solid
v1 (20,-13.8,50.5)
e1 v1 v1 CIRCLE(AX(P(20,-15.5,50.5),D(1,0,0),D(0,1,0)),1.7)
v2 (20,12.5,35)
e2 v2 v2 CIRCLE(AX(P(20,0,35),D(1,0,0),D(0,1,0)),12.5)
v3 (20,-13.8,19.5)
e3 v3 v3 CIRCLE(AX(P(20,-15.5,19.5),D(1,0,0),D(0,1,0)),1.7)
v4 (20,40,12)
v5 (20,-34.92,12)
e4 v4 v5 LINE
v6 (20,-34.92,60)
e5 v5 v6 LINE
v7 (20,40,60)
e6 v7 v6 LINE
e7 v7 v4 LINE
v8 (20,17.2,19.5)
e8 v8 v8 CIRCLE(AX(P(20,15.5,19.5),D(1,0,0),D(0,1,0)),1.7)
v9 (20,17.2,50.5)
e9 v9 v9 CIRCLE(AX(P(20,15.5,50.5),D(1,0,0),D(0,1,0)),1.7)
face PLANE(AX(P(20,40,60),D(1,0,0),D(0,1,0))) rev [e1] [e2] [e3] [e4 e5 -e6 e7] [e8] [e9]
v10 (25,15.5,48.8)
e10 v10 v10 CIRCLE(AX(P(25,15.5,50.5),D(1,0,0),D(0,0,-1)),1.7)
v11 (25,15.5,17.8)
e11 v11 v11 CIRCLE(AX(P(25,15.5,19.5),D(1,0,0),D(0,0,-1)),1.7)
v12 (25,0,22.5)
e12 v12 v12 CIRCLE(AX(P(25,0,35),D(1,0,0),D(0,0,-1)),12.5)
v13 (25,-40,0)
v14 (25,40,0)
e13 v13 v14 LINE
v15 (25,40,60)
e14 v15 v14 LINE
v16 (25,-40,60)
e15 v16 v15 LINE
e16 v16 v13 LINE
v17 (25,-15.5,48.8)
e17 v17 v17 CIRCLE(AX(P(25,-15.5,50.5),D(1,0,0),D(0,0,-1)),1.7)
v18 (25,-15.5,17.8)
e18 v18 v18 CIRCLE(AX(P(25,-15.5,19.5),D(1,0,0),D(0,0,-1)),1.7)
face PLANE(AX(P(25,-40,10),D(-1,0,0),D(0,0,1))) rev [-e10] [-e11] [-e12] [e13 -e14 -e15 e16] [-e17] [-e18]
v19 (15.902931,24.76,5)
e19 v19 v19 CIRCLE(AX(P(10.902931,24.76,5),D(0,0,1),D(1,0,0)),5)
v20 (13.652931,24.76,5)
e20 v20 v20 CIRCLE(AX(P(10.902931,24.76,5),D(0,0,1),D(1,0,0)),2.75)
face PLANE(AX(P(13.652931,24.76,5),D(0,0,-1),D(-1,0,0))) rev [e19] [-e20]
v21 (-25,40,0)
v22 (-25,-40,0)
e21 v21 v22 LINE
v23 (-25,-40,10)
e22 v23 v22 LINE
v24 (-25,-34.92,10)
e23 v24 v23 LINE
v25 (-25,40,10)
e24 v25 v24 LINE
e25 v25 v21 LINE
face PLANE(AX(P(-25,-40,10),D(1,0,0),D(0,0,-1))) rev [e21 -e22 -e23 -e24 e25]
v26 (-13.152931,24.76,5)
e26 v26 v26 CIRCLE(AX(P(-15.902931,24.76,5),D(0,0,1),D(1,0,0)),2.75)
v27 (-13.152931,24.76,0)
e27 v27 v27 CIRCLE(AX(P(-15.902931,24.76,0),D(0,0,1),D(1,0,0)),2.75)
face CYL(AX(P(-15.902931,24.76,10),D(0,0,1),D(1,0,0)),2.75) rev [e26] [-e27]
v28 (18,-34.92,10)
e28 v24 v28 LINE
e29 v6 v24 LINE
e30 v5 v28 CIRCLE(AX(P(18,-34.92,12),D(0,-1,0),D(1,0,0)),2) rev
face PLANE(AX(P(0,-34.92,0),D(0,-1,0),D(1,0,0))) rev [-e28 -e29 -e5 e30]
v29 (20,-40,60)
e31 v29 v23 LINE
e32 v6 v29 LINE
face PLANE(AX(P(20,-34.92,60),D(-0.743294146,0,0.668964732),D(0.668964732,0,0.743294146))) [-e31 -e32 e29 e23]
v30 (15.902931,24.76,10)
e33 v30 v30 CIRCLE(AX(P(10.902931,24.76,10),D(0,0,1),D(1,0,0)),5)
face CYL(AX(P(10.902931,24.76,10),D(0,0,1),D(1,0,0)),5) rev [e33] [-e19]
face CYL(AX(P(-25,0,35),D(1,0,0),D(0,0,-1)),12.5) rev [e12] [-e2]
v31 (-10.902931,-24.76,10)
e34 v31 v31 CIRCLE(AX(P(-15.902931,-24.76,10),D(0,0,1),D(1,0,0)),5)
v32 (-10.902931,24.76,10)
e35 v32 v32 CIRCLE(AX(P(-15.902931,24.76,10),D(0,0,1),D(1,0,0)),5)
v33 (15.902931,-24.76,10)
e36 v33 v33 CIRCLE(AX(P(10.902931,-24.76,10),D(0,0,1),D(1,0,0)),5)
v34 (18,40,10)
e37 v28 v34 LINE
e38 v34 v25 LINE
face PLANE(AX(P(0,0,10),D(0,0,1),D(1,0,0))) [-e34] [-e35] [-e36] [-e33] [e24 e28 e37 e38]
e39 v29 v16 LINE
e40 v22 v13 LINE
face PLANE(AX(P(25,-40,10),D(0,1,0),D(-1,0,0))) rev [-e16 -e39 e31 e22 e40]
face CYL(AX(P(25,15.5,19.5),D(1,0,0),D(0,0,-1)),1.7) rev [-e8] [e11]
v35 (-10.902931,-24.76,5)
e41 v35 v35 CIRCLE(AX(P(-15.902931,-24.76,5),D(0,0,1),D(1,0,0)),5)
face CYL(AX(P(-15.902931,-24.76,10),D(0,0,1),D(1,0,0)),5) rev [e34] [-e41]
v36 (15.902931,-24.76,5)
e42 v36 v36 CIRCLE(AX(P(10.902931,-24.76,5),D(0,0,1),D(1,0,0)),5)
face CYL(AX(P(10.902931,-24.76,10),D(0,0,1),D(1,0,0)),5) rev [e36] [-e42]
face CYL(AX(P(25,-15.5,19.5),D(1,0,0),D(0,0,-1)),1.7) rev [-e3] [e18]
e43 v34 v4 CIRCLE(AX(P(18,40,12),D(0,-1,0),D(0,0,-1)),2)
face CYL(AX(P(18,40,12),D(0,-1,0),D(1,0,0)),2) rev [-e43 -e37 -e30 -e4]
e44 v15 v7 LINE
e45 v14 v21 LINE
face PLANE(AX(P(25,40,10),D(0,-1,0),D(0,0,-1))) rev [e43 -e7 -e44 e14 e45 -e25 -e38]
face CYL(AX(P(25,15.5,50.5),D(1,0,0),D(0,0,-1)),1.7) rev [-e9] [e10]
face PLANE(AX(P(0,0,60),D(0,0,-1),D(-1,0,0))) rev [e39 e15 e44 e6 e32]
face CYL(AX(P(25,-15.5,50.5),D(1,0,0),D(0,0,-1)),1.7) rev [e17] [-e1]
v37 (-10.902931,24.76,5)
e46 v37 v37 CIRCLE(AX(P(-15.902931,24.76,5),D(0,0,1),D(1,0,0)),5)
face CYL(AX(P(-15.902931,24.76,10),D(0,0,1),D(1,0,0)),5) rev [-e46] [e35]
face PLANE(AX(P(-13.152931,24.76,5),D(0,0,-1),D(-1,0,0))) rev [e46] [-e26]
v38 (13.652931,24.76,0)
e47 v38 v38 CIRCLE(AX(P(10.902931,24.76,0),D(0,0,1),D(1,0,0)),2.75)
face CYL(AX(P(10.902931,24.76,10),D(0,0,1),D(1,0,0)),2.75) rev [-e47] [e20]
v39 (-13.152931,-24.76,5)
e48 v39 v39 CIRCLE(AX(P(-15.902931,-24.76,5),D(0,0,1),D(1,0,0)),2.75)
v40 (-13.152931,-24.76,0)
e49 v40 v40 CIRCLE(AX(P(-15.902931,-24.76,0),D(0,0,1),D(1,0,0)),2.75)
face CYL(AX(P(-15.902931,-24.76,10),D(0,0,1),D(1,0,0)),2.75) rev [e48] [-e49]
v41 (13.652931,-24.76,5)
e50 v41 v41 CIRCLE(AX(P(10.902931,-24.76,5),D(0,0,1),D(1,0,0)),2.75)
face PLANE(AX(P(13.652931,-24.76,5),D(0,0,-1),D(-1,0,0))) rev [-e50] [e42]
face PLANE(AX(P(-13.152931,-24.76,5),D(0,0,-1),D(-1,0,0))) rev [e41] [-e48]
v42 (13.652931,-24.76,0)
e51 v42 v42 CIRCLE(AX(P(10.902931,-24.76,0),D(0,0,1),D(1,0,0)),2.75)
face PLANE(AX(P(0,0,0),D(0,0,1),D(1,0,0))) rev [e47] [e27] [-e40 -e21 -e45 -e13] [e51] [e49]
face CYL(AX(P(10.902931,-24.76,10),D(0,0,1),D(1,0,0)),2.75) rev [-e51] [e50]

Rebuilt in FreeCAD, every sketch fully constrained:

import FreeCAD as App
import Part
import Sketcher

V = App.Vector
Q = App.Units.Quantity


def edges_at(feature, points):
    """Names of the edges that pass closest to the given points."""
    edges = feature.Shape.Edges
    near = lambda p: min(range(len(edges)), key=lambda i: edges[i].distToShape(Part.Vertex(*p))[0])
    return sorted({f"Edge{near(p) + 1}" for p in points})


def add_polygon(sketch, points):
    """Adds a closed chain of lines whose ends are joined by coincident constraints."""
    first, n = sketch.GeometryCount, len(points)
    for a, b in zip(points, points[1:] + points[:1]):
        sketch.addGeometry(Part.LineSegment(App.Vector(*a, 0), App.Vector(*b, 0)), False)
    for i in range(n):
        sketch.addConstraint(Sketcher.Constraint("Coincident", first + i, 2, first + (i + 1) % n, 1))

doc = App.newDocument("Part")
body = doc.addObject("PartDesign::Body", "Body")

# Sketch on XY plane
sketch1 = body.newObject("Sketcher::SketchObject", "Sketch")
sketch1.AttachmentSupport = (doc.getObject("XY_Plane"), [""])
sketch1.MapMode = "FlatFace"
add_polygon(sketch1, [(-25, 40), (-25, -40), (25, -40), (25, 40)])  # lines 0-3
sketch1.addConstraint(Sketcher.Constraint("Vertical", 0))
sketch1.addConstraint(Sketcher.Constraint("Horizontal", 1))
sketch1.addConstraint(Sketcher.Constraint("Vertical", 2))
sketch1.addConstraint(Sketcher.Constraint("Horizontal", 3))
sketch1.addConstraint(Sketcher.Constraint("Symmetric", 0, 2, 2, 2, -1, 1))
sketch1.addConstraint(Sketcher.Constraint("DistanceX", 1, 1, 1, 2, Q("50 mm")))
sketch1.addConstraint(Sketcher.Constraint("DistanceY", 0, 2, 0, 1, Q("80 mm")))
pad1 = body.newObject("PartDesign::Pad", "Pad")
pad1.Profile = sketch1
pad1.Length = 10

# Sketch on XY plane
sketch2 = body.newObject("Sketcher::SketchObject", "Sketch001")
sketch2.AttachmentSupport = (doc.getObject("XY_Plane"), [""])
sketch2.MapMode = "FlatFace"
sketch2.AttachmentOffset = App.Placement(V(0, 0, 10), App.Rotation())
add_polygon(sketch2, [(20, 40), (20, -40), (25, -40), (25, 40)])  # lines 0-3
sketch2.addConstraint(Sketcher.Constraint("Vertical", 0))
sketch2.addConstraint(Sketcher.Constraint("Horizontal", 1))
sketch2.addConstraint(Sketcher.Constraint("Vertical", 2))
sketch2.addConstraint(Sketcher.Constraint("Horizontal", 3))
sketch2.addConstraint(Sketcher.Constraint("DistanceX", 1, 1, 1, 2, Q("5 mm")))
sketch2.addConstraint(Sketcher.Constraint("DistanceY", 0, 2, 0, 1, Q("80 mm")))
sketch2.addConstraint(Sketcher.Constraint("DistanceX", -1, 1, 0, 2, Q("20 mm")))
sketch2.addConstraint(Sketcher.Constraint("DistanceY", 0, 2, -1, 1, Q("40 mm")))
pad2 = body.newObject("PartDesign::Pad", "Pad001")
pad2.Profile = sketch2
pad2.Length = 50

# Sketch on YZ plane
sketch3 = body.newObject("Sketcher::SketchObject", "Sketch002")
sketch3.AttachmentSupport = (doc.getObject("YZ_Plane"), [""])
sketch3.MapMode = "FlatFace"
sketch3.AttachmentOffset = App.Placement(V(0, 0, 25), App.Rotation())
sketch3.addGeometry(Part.Circle(V(0, 35, 0), V(0, 0, 1), 12), False)
sketch3.addConstraint(Sketcher.Constraint("PointOnObject", 0, 3, -2))
sketch3.addConstraint(Sketcher.Constraint("Diameter", 0, Q("25 mm")))
sketch3.addConstraint(Sketcher.Constraint("DistanceY", -1, 1, 0, 3, Q("35 mm")))
pocket1 = body.newObject("PartDesign::Pocket", "Pocket")
pocket1.Profile = sketch3
pocket1.Type = "ThroughAll"

# Sketch on YZ plane
sketch4 = body.newObject("Sketcher::SketchObject", "Sketch003")
sketch4.AttachmentSupport = (doc.getObject("YZ_Plane"), [""])
sketch4.MapMode = "FlatFace"
sketch4.AttachmentOffset = App.Placement(V(0, 0, 25), App.Rotation())
sketch4.addGeometry(Part.Circle(V(-15.5, 50.5, 0), V(0, 0, 1), 1.7), False)
sketch4.addGeometry(Part.Circle(V(0, 35, 0), V(0, 0, 1), 1.7), False)
sketch4.addGeometry(Part.Circle(V(15.5, 50.5, 0), V(0, 0, 1), 1.7), False)
sketch4.addGeometry(Part.Circle(V(-15.5, 19.5, 0), V(0, 0, 1), 1.7), False)
sketch4.addGeometry(Part.Circle(V(15.5, 19.5, 0), V(0, 0, 1), 1.7), False)
sketch4.addConstraint(Sketcher.Constraint("Equal", 0, 1))
sketch4.addConstraint(Sketcher.Constraint("Equal", 1, 2))
sketch4.addConstraint(Sketcher.Constraint("Equal", 2, 3))
sketch4.addConstraint(Sketcher.Constraint("Equal", 3, 4))
sketch4.addConstraint(Sketcher.Constraint("Symmetric", 0, 3, 2, 3, -2))
sketch4.addConstraint(Sketcher.Constraint("Symmetric", 3, 3, 4, 3, -2))
sketch4.addConstraint(Sketcher.Constraint("PointOnObject", 1, 3, -2))
sketch4.addConstraint(Sketcher.Constraint("Vertical", 0, 3, 3, 3))
sketch4.addConstraint(Sketcher.Constraint("Diameter", 0, Q("3.4 mm")))
sketch4.addConstraint(Sketcher.Constraint("DistanceY", -1, 1, 1, 3, Q("35 mm")))
sketch4.addConstraint(Sketcher.Constraint("DistanceX", 0, 3, 2, 3, Q("31 mm")))
sketch4.addConstraint(Sketcher.Constraint("DistanceY", 3, 3, 0, 3, Q("31 mm")))
sketch4.addConstraint(Sketcher.Constraint("DistanceY", -1, 1, 0, 3, Q("50.5 mm")))
doc.recompute()
hole = body.newObject("PartDesign::Hole", "Hole")
hole.Profile = sketch4
hole.ThreadType = "None"
hole.Diameter = 3.4
hole.DepthType = "ThroughAll"

# Sketch on XY plane
sketch5 = body.newObject("Sketcher::SketchObject", "Sketch004")
sketch5.AttachmentSupport = (doc.getObject("XY_Plane"), [""])
sketch5.MapMode = "FlatFace"
sketch5.AttachmentOffset = App.Placement(V(0, 0, 10), App.Rotation())
sketch5.addGeometry(Part.Circle(V(-15.9, 24.8, 0), V(0, 0, 1), 2.8), False)
sketch5.addGeometry(Part.Circle(V(10.9, 24.8, 0), V(0, 0, 1), 2.8), False)
sketch5.addGeometry(Part.Circle(V(-15.9, -24.8, 0), V(0, 0, 1), 2.8), False)
sketch5.addGeometry(Part.Circle(V(10.9, -24.8, 0), V(0, 0, 1), 2.8), False)
sketch5.addConstraint(Sketcher.Constraint("Equal", 0, 1))
sketch5.addConstraint(Sketcher.Constraint("Equal", 1, 2))
sketch5.addConstraint(Sketcher.Constraint("Equal", 2, 3))
sketch5.addConstraint(Sketcher.Constraint("Symmetric", 0, 3, 2, 3, -1))
sketch5.addConstraint(Sketcher.Constraint("Symmetric", 1, 3, 3, 3, -1))
sketch5.addConstraint(Sketcher.Constraint("Horizontal", 0, 3, 1, 3))
sketch5.addConstraint(Sketcher.Constraint("Diameter", 0, Q("5.5 mm")))
sketch5.addConstraint(Sketcher.Constraint("DistanceY", -1, 1, 0, 3, Q("24.76 mm")))
sketch5.addConstraint(Sketcher.Constraint("DistanceX", 0, 3, -1, 1, Q("15.902931 mm")))
sketch5.addConstraint(Sketcher.Constraint("DistanceX", -1, 1, 1, 3, Q("10.902931 mm")))
doc.recompute()
hole2 = body.newObject("PartDesign::Hole", "Hole001")
hole2.Profile = sketch5
hole2.ThreadType = "None"
hole2.Diameter = 5.5
hole2.DepthType = "ThroughAll"
hole2.HoleCutType = "Counterbore"
hole2.HoleCutDiameter = 10
hole2.HoleCutDepth = 5
doc.recompute()

fillet = body.newObject("PartDesign::Fillet", "Fillet")
fillet.Base = (hole2, edges_at(hole2, [(20, 0, 10)]))
fillet.Radius = 2

# Sketch on XZ plane
sketch6 = body.newObject("Sketcher::SketchObject", "Sketch005")
sketch6.AttachmentSupport = (doc.getObject("XZ_Plane"), [""])
sketch6.MapMode = "FlatFace"
sketch6.AttachmentOffset = App.Placement(V(0, 0, 40), App.Rotation())
add_polygon(sketch6, [(20, 60), (-25, 10), (20, 10)])  # lines 0-2
sketch6.addConstraint(Sketcher.Constraint("Horizontal", 1))
sketch6.addConstraint(Sketcher.Constraint("Vertical", 2))
sketch6.addConstraint(Sketcher.Constraint("DistanceX", 1, 1, 1, 2, Q("45 mm")))
sketch6.addConstraint(Sketcher.Constraint("DistanceY", 2, 1, 2, 2, Q("50 mm")))
sketch6.addConstraint(Sketcher.Constraint("DistanceX", 0, 2, -1, 1, Q("25 mm")))
sketch6.addConstraint(Sketcher.Constraint("DistanceY", -1, 1, 0, 2, Q("10 mm")))
pad3 = body.newObject("PartDesign::Pad", "Pad002")
pad3.Profile = sketch6
pad3.Length = 5.08
pad3.Reversed = True

doc.recompute()
